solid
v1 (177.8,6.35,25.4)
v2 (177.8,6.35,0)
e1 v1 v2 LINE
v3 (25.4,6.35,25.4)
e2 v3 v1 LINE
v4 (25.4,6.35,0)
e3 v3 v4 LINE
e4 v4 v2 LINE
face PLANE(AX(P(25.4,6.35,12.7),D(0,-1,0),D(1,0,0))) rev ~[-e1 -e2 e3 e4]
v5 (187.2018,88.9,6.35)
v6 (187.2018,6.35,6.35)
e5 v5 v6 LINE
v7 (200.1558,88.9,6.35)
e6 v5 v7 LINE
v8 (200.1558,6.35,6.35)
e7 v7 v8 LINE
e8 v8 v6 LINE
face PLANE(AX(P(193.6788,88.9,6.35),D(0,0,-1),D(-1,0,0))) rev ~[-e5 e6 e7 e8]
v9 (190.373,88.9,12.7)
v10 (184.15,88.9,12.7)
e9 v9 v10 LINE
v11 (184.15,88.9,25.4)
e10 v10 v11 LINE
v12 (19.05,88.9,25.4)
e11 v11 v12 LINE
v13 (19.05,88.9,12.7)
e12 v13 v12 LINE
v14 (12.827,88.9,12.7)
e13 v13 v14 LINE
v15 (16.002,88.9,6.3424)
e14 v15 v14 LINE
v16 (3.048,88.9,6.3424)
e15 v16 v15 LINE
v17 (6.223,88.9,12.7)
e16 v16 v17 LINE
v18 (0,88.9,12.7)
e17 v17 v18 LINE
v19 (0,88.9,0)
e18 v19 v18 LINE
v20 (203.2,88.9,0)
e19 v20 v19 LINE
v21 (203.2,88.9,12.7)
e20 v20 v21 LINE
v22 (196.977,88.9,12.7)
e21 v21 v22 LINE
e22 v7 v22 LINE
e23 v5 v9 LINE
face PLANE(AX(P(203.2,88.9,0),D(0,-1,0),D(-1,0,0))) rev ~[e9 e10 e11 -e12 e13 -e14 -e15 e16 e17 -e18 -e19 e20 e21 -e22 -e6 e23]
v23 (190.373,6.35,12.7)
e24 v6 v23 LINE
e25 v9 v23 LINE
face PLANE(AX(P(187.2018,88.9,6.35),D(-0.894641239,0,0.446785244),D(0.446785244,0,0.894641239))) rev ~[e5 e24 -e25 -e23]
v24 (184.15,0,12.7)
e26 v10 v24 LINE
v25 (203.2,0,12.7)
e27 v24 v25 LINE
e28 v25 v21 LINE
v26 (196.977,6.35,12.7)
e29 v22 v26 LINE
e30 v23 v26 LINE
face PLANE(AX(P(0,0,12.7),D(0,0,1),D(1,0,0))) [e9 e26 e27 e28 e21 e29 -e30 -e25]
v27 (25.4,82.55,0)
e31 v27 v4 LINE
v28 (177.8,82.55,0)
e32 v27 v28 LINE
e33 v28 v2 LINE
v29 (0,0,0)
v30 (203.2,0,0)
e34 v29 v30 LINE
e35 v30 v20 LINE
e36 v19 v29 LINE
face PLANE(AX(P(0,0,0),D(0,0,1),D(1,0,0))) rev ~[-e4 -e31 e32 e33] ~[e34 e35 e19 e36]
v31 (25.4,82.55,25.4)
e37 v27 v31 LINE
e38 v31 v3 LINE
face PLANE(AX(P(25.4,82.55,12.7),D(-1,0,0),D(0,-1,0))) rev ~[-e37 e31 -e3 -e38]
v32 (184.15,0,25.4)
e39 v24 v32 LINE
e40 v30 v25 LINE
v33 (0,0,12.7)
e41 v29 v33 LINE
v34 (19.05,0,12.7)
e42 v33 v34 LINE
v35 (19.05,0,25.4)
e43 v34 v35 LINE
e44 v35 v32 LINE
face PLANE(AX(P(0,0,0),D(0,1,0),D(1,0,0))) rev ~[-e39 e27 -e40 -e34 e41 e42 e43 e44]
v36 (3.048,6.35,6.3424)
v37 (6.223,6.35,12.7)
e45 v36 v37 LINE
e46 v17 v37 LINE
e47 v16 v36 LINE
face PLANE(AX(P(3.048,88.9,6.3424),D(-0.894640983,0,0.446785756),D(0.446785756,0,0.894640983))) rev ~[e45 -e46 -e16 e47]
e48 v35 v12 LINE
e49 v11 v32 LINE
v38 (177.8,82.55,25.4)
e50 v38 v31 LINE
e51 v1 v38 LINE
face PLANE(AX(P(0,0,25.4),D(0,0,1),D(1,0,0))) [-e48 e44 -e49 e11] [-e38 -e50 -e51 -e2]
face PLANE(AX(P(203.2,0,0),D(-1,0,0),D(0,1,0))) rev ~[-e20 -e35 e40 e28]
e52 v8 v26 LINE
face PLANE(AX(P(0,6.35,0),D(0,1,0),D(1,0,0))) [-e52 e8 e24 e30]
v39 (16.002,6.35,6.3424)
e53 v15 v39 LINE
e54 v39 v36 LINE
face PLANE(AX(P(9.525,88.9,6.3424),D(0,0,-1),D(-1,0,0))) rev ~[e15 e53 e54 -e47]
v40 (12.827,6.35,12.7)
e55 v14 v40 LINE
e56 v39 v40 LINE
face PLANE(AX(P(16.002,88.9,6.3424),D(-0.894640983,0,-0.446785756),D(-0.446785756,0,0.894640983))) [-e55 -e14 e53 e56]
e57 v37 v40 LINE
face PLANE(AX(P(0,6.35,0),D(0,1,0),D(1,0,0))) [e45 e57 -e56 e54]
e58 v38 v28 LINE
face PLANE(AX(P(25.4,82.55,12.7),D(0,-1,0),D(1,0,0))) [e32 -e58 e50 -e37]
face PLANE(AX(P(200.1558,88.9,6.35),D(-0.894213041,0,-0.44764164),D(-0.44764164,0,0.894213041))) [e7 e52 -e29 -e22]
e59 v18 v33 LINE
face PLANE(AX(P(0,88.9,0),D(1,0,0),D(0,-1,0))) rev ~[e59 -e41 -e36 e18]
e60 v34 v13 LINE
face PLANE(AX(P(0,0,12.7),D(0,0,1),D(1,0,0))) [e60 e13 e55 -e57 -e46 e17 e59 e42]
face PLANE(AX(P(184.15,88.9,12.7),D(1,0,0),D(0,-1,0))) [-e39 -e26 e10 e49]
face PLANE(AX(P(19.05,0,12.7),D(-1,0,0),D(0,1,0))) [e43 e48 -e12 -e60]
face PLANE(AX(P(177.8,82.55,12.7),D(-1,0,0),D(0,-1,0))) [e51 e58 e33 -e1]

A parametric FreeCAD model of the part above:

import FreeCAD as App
import Part
import Sketcher
Q = App.Units.Quantity


def add_polygon(sketch, points):
    """Adds a closed chain of lines whose ends are joined by coincident constraints."""
    first, n = sketch.GeometryCount, len(points)
    for a, b in zip(points, points[1:] + points[:1]):
        sketch.addGeometry(Part.LineSegment(App.Vector(*a, 0), App.Vector(*b, 0)), False)
    for i in range(n):
        sketch.addConstraint(Sketcher.Constraint("Coincident", first + i, 2, first + (i + 1) % n, 1))

doc = App.newDocument("Part")
body = doc.addObject("PartDesign::Body", "Body")

# Sketch on XY plane
sketch1 = body.newObject("Sketcher::SketchObject", "Sketch")
sketch1.AttachmentSupport = (doc.getObject("XY_Plane"), [""])
sketch1.MapMode = "FlatFace"
add_polygon(sketch1, [(0, 89), (0, 0), (203, 0), (203, 89)])  # lines 0-3
sketch1.addConstraint(Sketcher.Constraint("Vertical", 0))
sketch1.addConstraint(Sketcher.Constraint("Horizontal", 1))
sketch1.addConstraint(Sketcher.Constraint("Vertical", 2))
sketch1.addConstraint(Sketcher.Constraint("Horizontal", 3))
sketch1.addConstraint(Sketcher.Constraint("Coincident", 0, 2, -1, 1))
sketch1.addConstraint(Sketcher.Constraint("DistanceX", 1, 1, 1, 2, Q("8 in")))
sketch1.addConstraint(Sketcher.Constraint("DistanceY", 0, 2, 0, 1, Q("3.5 in")))
pad1 = body.newObject("PartDesign::Pad", "Pad")
pad1.Profile = sketch1
pad1.Length = Q("0.5 in")

# Sketch on XY plane
sketch2 = body.newObject("Sketcher::SketchObject", "Sketch001")
sketch2.AttachmentSupport = (doc.getObject("XY_Plane"), [""])
sketch2.MapMode = "FlatFace"
sketch2.AttachmentOffset = App.Placement(App.Vector(0, 0, 0.5 * 25.4), App.Rotation())
add_polygon(sketch2, [(19, 89), (19, 0), (184, 0), (184, 89)])  # lines 0-3
add_polygon(sketch2, [(178, 6), (25, 6), (25, 83), (178, 83)])  # lines 4-7
sketch2.addConstraint(Sketcher.Constraint("Vertical", 0))
sketch2.addConstraint(Sketcher.Constraint("Horizontal", 1))
sketch2.addConstraint(Sketcher.Constraint("Vertical", 2))
sketch2.addConstraint(Sketcher.Constraint("Horizontal", 3))
sketch2.addConstraint(Sketcher.Constraint("Horizontal", 4))
sketch2.addConstraint(Sketcher.Constraint("Vertical", 5))
sketch2.addConstraint(Sketcher.Constraint("Horizontal", 6))
sketch2.addConstraint(Sketcher.Constraint("Vertical", 7))
sketch2.addConstraint(Sketcher.Constraint("PointOnObject", 0, 2, -1))
sketch2.addConstraint(Sketcher.Constraint("DistanceX", 4, 2, 4, 1, Q("6 in")))
sketch2.addConstraint(Sketcher.Constraint("DistanceY", 5, 1, 5, 2, Q("3 in")))
sketch2.addConstraint(Sketcher.Constraint("DistanceY", -1, 1, 4, 2, Q("0.25 in")))
sketch2.addConstraint(Sketcher.Constraint("DistanceX", 0, 2, 4, 2, Q("0.25 in")))
sketch2.addConstraint(Sketcher.Constraint("DistanceY", 5, 2, 3, 2, Q("0.25 in")))
sketch2.addConstraint(Sketcher.Constraint("DistanceX", 6, 2, 2, 2, Q("0.25 in")))
sketch2.addConstraint(Sketcher.Constraint("DistanceX", -1, 1, 4, 2, Q("1 in")))
pad2 = body.newObject("PartDesign::Pad", "Pad001")
pad2.Profile = sketch2
pad2.Length = Q("0.5 in")

# Sketch on XZ plane
sketch3 = body.newObject("Sketcher::SketchObject", "Sketch002")
sketch3.AttachmentSupport = (doc.getObject("XZ_Plane"), [""])
sketch3.MapMode = "FlatFace"
sketch3.AttachmentOffset = App.Placement(App.Vector(0, 0, -3.5 * 25.4), App.Rotation())
add_polygon(sketch3, [(190, 13), (197, 13), (200, 6), (187, 6)])  # lines 0-3
add_polygon(sketch3, [(3, 6), (6, 13), (13, 13), (16, 6)])  # lines 4-7
sketch3.addConstraint(Sketcher.Constraint("Horizontal", 0))
sketch3.addConstraint(Sketcher.Constraint("Horizontal", 2))
sketch3.addConstraint(Sketcher.Constraint("Horizontal", 5))
sketch3.addConstraint(Sketcher.Constraint("Horizontal", 7))
sketch3.addConstraint(Sketcher.Constraint("Parallel", 3, 4))
sketch3.addConstraint(Sketcher.Constraint("Horizontal", 3, 2, 4, 2))
sketch3.addConstraint(Sketcher.Constraint("Equal", 0, 5))
sketch3.addConstraint(Sketcher.Constraint("Equal", 2, 7))
sketch3.addConstraint(Sketcher.Constraint("Equal", 4, 6))
sketch3.addConstraint(Sketcher.Constraint("DistanceY", -1, 1, 1, 2, Q("0.25 in")))
sketch3.addConstraint(Sketcher.Constraint("DistanceY", 1, 2, 0, 2, Q("0.25 in")))
sketch3.addConstraint(Sketcher.Constraint("DistanceX", 0, 1, 0, 2, Q("0.26 in")))
sketch3.addConstraint(Sketcher.Constraint("DistanceX", 2, 2, 2, 1, Q("0.51 in")))
sketch3.addConstraint(Sketcher.Constraint("DistanceX", -1, 1, 6, 2, Q("0.63 in")))
sketch3.addConstraint(Sketcher.Constraint("DistanceX", 4, 2, 3, 2, Q("7.25 in")))
sketch3.addConstraint(Sketcher.Constraint("DistanceY", -1, 1, 6, 2, Q("0.2497 in")))
pocket1 = body.newObject("PartDesign::Pocket", "Pocket")
pocket1.Profile = sketch3
pocket1.Length = Q("3.25 in")
pocket1.Reversed = True

# Sketch on XY plane
sketch4 = body.newObject("Sketcher::SketchObject", "Sketch003")
sketch4.AttachmentSupport = (doc.getObject("XY_Plane"), [""])
sketch4.MapMode = "FlatFace"
sketch4.AttachmentOffset = App.Placement(App.Vector(0, 0, 0.5 * 25.4), App.Rotation())
add_polygon(sketch4, [(178, 83), (25, 83), (25, 6), (178, 6)])  # lines 0-3
sketch4.addConstraint(Sketcher.Constraint("Horizontal", 0))
sketch4.addConstraint(Sketcher.Constraint("Vertical", 1))
sketch4.addConstraint(Sketcher.Constraint("Horizontal", 2))
sketch4.addConstraint(Sketcher.Constraint("Vertical", 3))
sketch4.addConstraint(Sketcher.Constraint("DistanceX", 0, 2, 0, 1, Q("6 in")))
sketch4.addConstraint(Sketcher.Constraint("DistanceY", 1, 2, 1, 1, Q("3 in")))
sketch4.addConstraint(Sketcher.Constraint("DistanceX", -1, 1, 0, 2, Q("1 in")))
sketch4.addConstraint(Sketcher.Constraint("DistanceY", -1, 1, 0, 2, Q("3.25 in")))
pocket2 = body.newObject("PartDesign::Pocket", "Pocket001")
pocket2.Profile = sketch4
pocket2.Length = Q("3.25 in")

doc.recompute()
